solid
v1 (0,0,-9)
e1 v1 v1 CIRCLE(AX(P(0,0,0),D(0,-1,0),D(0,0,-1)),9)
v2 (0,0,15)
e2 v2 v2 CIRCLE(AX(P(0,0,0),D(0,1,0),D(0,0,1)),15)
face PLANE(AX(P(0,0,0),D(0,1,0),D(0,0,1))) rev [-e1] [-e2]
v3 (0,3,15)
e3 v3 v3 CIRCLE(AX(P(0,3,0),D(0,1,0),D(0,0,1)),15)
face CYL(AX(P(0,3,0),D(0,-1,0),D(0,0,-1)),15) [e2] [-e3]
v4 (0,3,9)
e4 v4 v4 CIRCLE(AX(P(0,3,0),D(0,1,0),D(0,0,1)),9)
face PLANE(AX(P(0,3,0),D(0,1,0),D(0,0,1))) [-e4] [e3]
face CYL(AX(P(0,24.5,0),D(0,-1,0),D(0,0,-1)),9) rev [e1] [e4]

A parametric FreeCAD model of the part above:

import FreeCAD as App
import Part
import Sketcher
Q = App.Units.Quantity

doc = App.newDocument("Part")
body = doc.addObject("PartDesign::Body", "Body")

sketch1 = body.newObject("Sketcher::SketchObject", "Sketch")
sketch1.AttachmentSupport = (doc.getObject("XZ_Plane"), [""])
sketch1.MapMode = "FlatFace"
sketch1.addGeometry(Part.Circle(App.Vector(0, 0, 0), App.Vector(0, 0, 1), 15), False)
sketch1.addConstraint([
    Sketcher.Constraint("Coincident", 0, 3, -1, 1),
    Sketcher.Constraint("Diameter", 0, Q("30 mm")),
])
pad1 = body.newObject("PartDesign::Pad", "Pad")
pad1.Profile = sketch1
pad1.Length = 3
pad1.Reversed = True

sketch2 = body.newObject("Sketcher::SketchObject", "Sketch001")
sketch2.AttachmentSupport = (doc.getObject("XZ_Plane"), [""])
sketch2.MapMode = "FlatFace"
sketch2.addGeometry(Part.Circle(App.Vector(0, 0, 0), App.Vector(0, 0, 1), 9), False)
sketch2.addConstraint([
    Sketcher.Constraint("Coincident", 0, 3, -1, 1),
    Sketcher.Constraint("Diameter", 0, Q("18 mm")),
])
pocket1 = body.newObject("PartDesign::Pocket", "Pocket")
pocket1.Profile = sketch2
pocket1.Length = 24.5

doc.recompute()
